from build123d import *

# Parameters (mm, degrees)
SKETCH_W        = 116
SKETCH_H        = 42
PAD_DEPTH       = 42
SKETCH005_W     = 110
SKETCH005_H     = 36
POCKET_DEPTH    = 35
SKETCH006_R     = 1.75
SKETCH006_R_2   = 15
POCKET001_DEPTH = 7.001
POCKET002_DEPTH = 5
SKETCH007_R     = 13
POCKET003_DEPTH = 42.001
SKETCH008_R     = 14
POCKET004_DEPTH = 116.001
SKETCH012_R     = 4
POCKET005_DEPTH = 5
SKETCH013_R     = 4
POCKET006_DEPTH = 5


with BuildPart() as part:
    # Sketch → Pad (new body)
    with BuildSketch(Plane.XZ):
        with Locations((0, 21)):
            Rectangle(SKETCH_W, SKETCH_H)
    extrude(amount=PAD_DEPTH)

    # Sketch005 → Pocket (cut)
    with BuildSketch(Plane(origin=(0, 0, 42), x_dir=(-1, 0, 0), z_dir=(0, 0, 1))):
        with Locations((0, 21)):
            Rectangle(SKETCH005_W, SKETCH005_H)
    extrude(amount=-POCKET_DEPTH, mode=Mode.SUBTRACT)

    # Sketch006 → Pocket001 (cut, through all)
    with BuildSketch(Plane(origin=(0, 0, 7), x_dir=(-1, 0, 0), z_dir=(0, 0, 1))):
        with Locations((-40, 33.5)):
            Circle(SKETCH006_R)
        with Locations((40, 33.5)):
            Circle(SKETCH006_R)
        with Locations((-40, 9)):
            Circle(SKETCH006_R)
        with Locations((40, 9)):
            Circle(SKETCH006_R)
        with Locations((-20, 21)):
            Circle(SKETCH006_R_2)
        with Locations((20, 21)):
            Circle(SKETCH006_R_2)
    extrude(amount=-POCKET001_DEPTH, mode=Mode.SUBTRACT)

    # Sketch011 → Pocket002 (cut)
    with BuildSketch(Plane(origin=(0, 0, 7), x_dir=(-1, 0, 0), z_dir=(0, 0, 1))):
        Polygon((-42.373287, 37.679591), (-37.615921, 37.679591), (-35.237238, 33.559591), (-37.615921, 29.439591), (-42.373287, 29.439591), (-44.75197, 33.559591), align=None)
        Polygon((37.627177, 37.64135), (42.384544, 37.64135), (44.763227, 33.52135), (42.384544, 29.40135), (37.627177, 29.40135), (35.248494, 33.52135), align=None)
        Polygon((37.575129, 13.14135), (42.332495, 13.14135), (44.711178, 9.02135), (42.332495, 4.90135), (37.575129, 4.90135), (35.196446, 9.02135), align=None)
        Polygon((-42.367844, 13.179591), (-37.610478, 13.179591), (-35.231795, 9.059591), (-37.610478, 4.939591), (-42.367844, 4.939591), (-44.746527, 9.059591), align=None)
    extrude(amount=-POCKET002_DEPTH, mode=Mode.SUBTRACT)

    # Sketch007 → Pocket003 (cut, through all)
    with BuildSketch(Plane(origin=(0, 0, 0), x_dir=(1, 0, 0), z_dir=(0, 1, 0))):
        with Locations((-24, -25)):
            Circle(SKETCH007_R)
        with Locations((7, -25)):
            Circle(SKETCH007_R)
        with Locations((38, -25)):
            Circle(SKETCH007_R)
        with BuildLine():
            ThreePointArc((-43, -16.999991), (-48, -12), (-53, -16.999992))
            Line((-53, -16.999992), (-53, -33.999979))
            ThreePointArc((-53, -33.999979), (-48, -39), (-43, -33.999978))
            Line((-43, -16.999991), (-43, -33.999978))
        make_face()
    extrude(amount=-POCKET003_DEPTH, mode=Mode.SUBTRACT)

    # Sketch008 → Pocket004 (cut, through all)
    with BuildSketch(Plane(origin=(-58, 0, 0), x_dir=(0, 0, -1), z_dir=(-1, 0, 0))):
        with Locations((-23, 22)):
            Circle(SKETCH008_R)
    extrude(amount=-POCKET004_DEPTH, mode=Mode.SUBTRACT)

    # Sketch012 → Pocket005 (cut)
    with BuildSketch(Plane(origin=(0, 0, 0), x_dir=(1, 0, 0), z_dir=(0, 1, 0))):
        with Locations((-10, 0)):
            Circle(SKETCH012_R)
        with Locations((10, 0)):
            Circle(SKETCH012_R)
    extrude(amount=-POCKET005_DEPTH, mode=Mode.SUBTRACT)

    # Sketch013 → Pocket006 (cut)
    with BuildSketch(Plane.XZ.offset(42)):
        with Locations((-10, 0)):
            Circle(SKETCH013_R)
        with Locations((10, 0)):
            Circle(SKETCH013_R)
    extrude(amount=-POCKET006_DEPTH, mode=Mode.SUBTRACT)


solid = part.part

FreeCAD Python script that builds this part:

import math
import FreeCAD as App
import Part
import Sketcher
from FreeCAD import Vector
Q = App.Units.Quantity


def add_polygon(sketch, points):
    """Adds a closed chain of lines whose ends are joined by coincident constraints."""
    first, n = sketch.GeometryCount, len(points)
    for a, b in zip(points, points[1:] + points[:1]):
        sketch.addGeometry(Part.LineSegment(App.Vector(*a, 0), App.Vector(*b, 0)), False)
    for i in range(n):
        sketch.addConstraint(Sketcher.Constraint("Coincident", first + i, 2, first + (i + 1) % n, 1))

doc = App.newDocument("Part")
body = doc.addObject("PartDesign::Body", "Body")

sketch1 = body.newObject("Sketcher::SketchObject", "Sketch")
sketch1.AttachmentSupport = (doc.getObject("XZ_Plane"), [""])
sketch1.MapMode = "FlatFace"
add_polygon(sketch1, [(-58, 42), (-58, 0), (58, 0), (58, 42)])
sketch1.addConstraint(Sketcher.Constraint("Vertical", 0))
sketch1.addConstraint(Sketcher.Constraint("Horizontal", 1))
sketch1.addConstraint(Sketcher.Constraint("Vertical", 2))
sketch1.addConstraint(Sketcher.Constraint("Horizontal", 3))
sketch1.addConstraint(Sketcher.Constraint("Symmetric", 0, 2, 1, 2, -1, 1))
sketch1.addConstraint(Sketcher.Constraint("DistanceX", 1, 1, 1, 2, Q("116 mm")))
sketch1.addConstraint(Sketcher.Constraint("DistanceY", 0, 2, 0, 1, Q("42 mm")))
pad1 = body.newObject("PartDesign::Pad", "Pad")
pad1.Profile = sketch1
pad1.Length = 42

sketch2 = body.newObject("Sketcher::SketchObject", "Sketch001")
sketch2.AttachmentSupport = (doc.getObject("XY_Plane"), [""])
sketch2.MapMode = "FlatFace"
sketch2.AttachmentOffset = App.Placement(Vector(0, 0, 42), App.Rotation())
add_polygon(sketch2, [(55, -39), (55, -3), (-55, -3), (-55, -39)])
sketch2.addConstraint(Sketcher.Constraint("Vertical", 0))
sketch2.addConstraint(Sketcher.Constraint("Horizontal", 1))
sketch2.addConstraint(Sketcher.Constraint("Vertical", 2))
sketch2.addConstraint(Sketcher.Constraint("Horizontal", 3))
sketch2.addConstraint(Sketcher.Constraint("DistanceX", 1, 2, 1, 1, Q("110 mm")))
sketch2.addConstraint(Sketcher.Constraint("DistanceY", 0, 1, 0, 2, Q("36 mm")))
sketch2.addConstraint(Sketcher.Constraint("DistanceX", -1, 1, 0, 2, Q("55 mm")))
sketch2.addConstraint(Sketcher.Constraint("DistanceY", 0, 2, -1, 1, Q("3 mm")))
pocket1 = body.newObject("PartDesign::Pocket", "Pocket")
pocket1.Profile = sketch2
pocket1.Length = 35

sketch3 = body.newObject("Sketcher::SketchObject", "Sketch002")
sketch3.AttachmentSupport = (doc.getObject("XY_Plane"), [""])
sketch3.MapMode = "FlatFace"
sketch3.AttachmentOffset = App.Placement(Vector(0, 0, 7), App.Rotation())
sketch3.addGeometry(Part.Circle(Vector(40, -33.5, 0), Vector(0, 0, 1), 1.8), False)
sketch3.addGeometry(Part.Circle(Vector(-40, -33.5, 0), Vector(0, 0, 1), 1.8), False)
sketch3.addGeometry(Part.Circle(Vector(40, -9, 0), Vector(0, 0, 1), 1.8), False)
sketch3.addGeometry(Part.Circle(Vector(-40, -9, 0), Vector(0, 0, 1), 1.8), False)
sketch3.addGeometry(Part.Circle(Vector(20, -21, 0), Vector(0, 0, 1), 15), False)
sketch3.addGeometry(Part.Circle(Vector(-20, -21, 0), Vector(0, 0, 1), 15), False)
sketch3.addConstraint(Sketcher.Constraint("Equal", 0, 1))
sketch3.addConstraint(Sketcher.Constraint("Equal", 1, 2))
sketch3.addConstraint(Sketcher.Constraint("Equal", 2, 3))
sketch3.addConstraint(Sketcher.Constraint("Equal", 4, 5))
sketch3.addConstraint(Sketcher.Constraint("Symmetric", 0, 3, 1, 3, -2))
sketch3.addConstraint(Sketcher.Constraint("Symmetric", 2, 3, 3, 3, -2))
sketch3.addConstraint(Sketcher.Constraint("Symmetric", 4, 3, 5, 3, -2))
sketch3.addConstraint(Sketcher.Constraint("Vertical", 0, 3, 2, 3))
sketch3.addConstraint(Sketcher.Constraint("Diameter", 4, Q("30 mm")))
sketch3.addConstraint(Sketcher.Constraint("Diameter", 0, Q("3.5 mm")))
sketch3.addConstraint(Sketcher.Constraint("DistanceX", -1, 1, 0, 3, Q("40 mm")))
sketch3.addConstraint(Sketcher.Constraint("DistanceY", 2, 3, -1, 1, Q("9 mm")))
sketch3.addConstraint(Sketcher.Constraint("DistanceX", -1, 1, 4, 3, Q("20 mm")))
sketch3.addConstraint(Sketcher.Constraint("DistanceY", 4, 3, -1, 1, Q("21 mm")))
sketch3.addConstraint(Sketcher.Constraint("DistanceY", 0, 3, -1, 1, Q("33.5 mm")))
pocket2 = body.newObject("PartDesign::Pocket", "Pocket001")
pocket2.Profile = sketch3
pocket2.Type = "ThroughAll"

sketch4 = body.newObject("Sketcher::SketchObject", "Sketch003")
sketch4.AttachmentSupport = (doc.getObject("XY_Plane"), [""])
sketch4.MapMode = "FlatFace"
sketch4.AttachmentOffset = App.Placement(Vector(0, 0, 7), App.Rotation())
add_polygon(sketch4, [(37.6, -37.7), (42.4, -37.7), (44.8, -33.6), (42.4, -29.4), (37.6, -29.4), (35.2, -33.6)])
add_polygon(sketch4, [(-42.4, -37.6), (-37.6, -37.6), (-35.2, -33.5), (-37.6, -29.4), (-42.4, -29.4), (-44.8, -33.5)])
add_polygon(sketch4, [(-42.3, -13.1), (-37.6, -13.1), (-35.2, -9), (-37.6, -4.9), (-42.3, -4.9), (-44.7, -9)])
add_polygon(sketch4, [(37.6, -13.2), (42.4, -13.2), (44.7, -9.1), (42.4, -4.9), (37.6, -4.9), (35.2, -9.1)])
sketch4.addConstraint(Sketcher.Constraint("Horizontal", 0))
sketch4.addConstraint(Sketcher.Constraint("Horizontal", 3))
sketch4.addConstraint(Sketcher.Constraint("Horizontal", 6))
sketch4.addConstraint(Sketcher.Constraint("Horizontal", 9))
sketch4.addConstraint(Sketcher.Constraint("Horizontal", 12))
sketch4.addConstraint(Sketcher.Constraint("Horizontal", 15))
sketch4.addConstraint(Sketcher.Constraint("Horizontal", 18))
sketch4.addConstraint(Sketcher.Constraint("Horizontal", 21))
sketch4.addConstraint(Sketcher.Constraint("Parallel", 1, 4))
sketch4.addConstraint(Sketcher.Constraint("Parallel", 2, 5))
sketch4.addConstraint(Sketcher.Constraint("Parallel", 4, 7))
sketch4.addConstraint(Sketcher.Constraint("Parallel", 5, 8))
sketch4.addConstraint(Sketcher.Constraint("Parallel", 7, 10))
sketch4.addConstraint(Sketcher.Constraint("Parallel", 8, 11))
sketch4.addConstraint(Sketcher.Constraint("Parallel", 10, 13))
sketch4.addConstraint(Sketcher.Constraint("Parallel", 11, 14))
sketch4.addConstraint(Sketcher.Constraint("Parallel", 13, 16))
sketch4.addConstraint(Sketcher.Constraint("Parallel", 14, 17))
sketch4.addConstraint(Sketcher.Constraint("Parallel", 16, 19))
sketch4.addConstraint(Sketcher.Constraint("Parallel", 17, 20))
sketch4.addConstraint(Sketcher.Constraint("Parallel", 19, 22))
sketch4.addConstraint(Sketcher.Constraint("Parallel", 20, 23))
sketch4.addConstraint(Sketcher.Constraint("Horizontal", 1, 2, 4, 2))
sketch4.addConstraint(Sketcher.Constraint("Horizontal", 7, 2, 10, 2))
sketch4.addConstraint(Sketcher.Constraint("Horizontal", 13, 2, 16, 2))
sketch4.addConstraint(Sketcher.Constraint("Horizontal", 19, 2, 22, 2))
sketch4.addConstraint(Sketcher.Constraint("Vertical", 0, 2, 2, 2))
sketch4.addConstraint(Sketcher.Constraint("Vertical", 3, 2, 5, 2))
sketch4.addConstraint(Sketcher.Constraint("Vertical", 6, 2, 8, 2))
sketch4.addConstraint(Sketcher.Constraint("Vertical", 12, 2, 14, 2))
sketch4.addConstraint(Sketcher.Constraint("Vertical", 18, 2, 20, 2))
sketch4.addConstraint(Sketcher.Constraint("Equal", 3, 6))
sketch4.addConstraint(Sketcher.Constraint("Equal", 9, 12))
sketch4.addConstraint(Sketcher.Constraint("Equal", 15, 18))
sketch4.addConstraint(Sketcher.Constraint("Equal", 5, 7))
sketch4.addConstraint(Sketcher.Constraint("Equal", 11, 13))
sketch4.addConstraint(Sketcher.Constraint("Equal", 17, 19))
sketch4.addConstraint(Sketcher.Constraint("Angle", 1, Q("60.000001 deg")))
sketch4.addConstraint(Sketcher.Constraint("DistanceY", 6, 2, 12, 2, Q("24.5 mm")))
sketch4.addConstraint(Sketcher.Constraint("DistanceY", 0, 2, 18, 2, Q("24.5 mm")))
sketch4.addConstraint(Sketcher.Constraint("DistanceY", 0, 2, 1, 2, Q("4.12 mm")))
sketch4.addConstraint(Sketcher.Constraint("DistanceX", 6, 2, 5, 2, Q("75.243098 mm")))
sketch4.addConstraint(Sketcher.Constraint("DistanceX", 10, 2, 12, 2, Q("7.188098 mm")))
sketch4.addConstraint(Sketcher.Constraint("DistanceX", 0, 1, 0, 2, Q("4.757366 mm")))
sketch4.addConstraint(Sketcher.Constraint("DistanceY", 0, 2, -1, 1, Q("37.679591 mm")))
sketch4.addConstraint(Sketcher.Constraint("DistanceX", -1, 1, 1, 2, Q("44.75197 mm")))
sketch4.addConstraint(Sketcher.Constraint("DistanceY", 6, 2, -1, 1, Q("37.64135 mm")))
sketch4.addConstraint(Sketcher.Constraint("DistanceX", 2, 2, 19, 2, Q("2.37324 mm")))
pocket3 = body.newObject("PartDesign::Pocket", "Pocket002")
pocket3.Profile = sketch4
pocket3.Length = 5

sketch5 = body.newObject("Sketcher::SketchObject", "Sketch004")
sketch5.AttachmentSupport = (doc.getObject("XZ_Plane"), [""])
sketch5.MapMode = "FlatFace"
sketch5.addGeometry(Part.Circle(Vector(-24, 25, 0), Vector(0, 0, 1), 13), False)
sketch5.addGeometry(Part.Circle(Vector(7, 25, 0), Vector(0, 0, 1), 13), False)
sketch5.addGeometry(Part.Circle(Vector(38, 25, 0), Vector(0, 0, 1), 13), False)
sketch5.addGeometry(Part.ArcOfCircle(Part.Circle(Vector(-48, 17, 0), Vector(0, 0, 1), 5), math.radians(-180), math.radians(0)), False)
sketch5.addGeometry(Part.LineSegment(Vector(-53, 17, 0), Vector(-53, 34, 0)), False)
sketch5.addGeometry(Part.ArcOfCircle(Part.Circle(Vector(-48, 34, 0), Vector(0, 0, 1), 5), math.radians(0), math.radians(180)), False)
sketch5.addGeometry(Part.LineSegment(Vector(-43, 34, 0), Vector(-43, 17, 0)), False)
sketch5.addConstraint(Sketcher.Constraint("Tangent", 3, 1, 4, 1))
sketch5.addConstraint(Sketcher.Constraint("Coincident", 4, 2, 5, 2))
sketch5.addConstraint(Sketcher.Constraint("Coincident", 5, 1, 6, 1))
sketch5.addConstraint(Sketcher.Constraint("Tangent", 6, 2, 3, 2))
sketch5.addConstraint(Sketcher.Constraint("Vertical", 4))
sketch5.addConstraint(Sketcher.Constraint("Vertical", 6))
sketch5.addConstraint(Sketcher.Constraint("Equal", 0, 1))
sketch5.addConstraint(Sketcher.Constraint("Equal", 1, 2))
sketch5.addConstraint(Sketcher.Constraint("Horizontal", 0, 3, 1, 3))
sketch5.addConstraint(Sketcher.Constraint("Horizontal", 1, 3, 2, 3))
sketch5.addConstraint(Sketcher.Constraint("Horizontal", 4, 2, 5, 1))
sketch5.addConstraint(Sketcher.Constraint("Diameter", 0, Q("26 mm")))
sketch5.addConstraint(Sketcher.Constraint("Radius", 3, Q("5 mm")))
sketch5.addConstraint(Sketcher.Constraint("DistanceX", 0, 3, -1, 1, Q("24 mm")))
sketch5.addConstraint(Sketcher.Constraint("DistanceY", -1, 1, 0, 3, Q("25 mm")))
sketch5.addConstraint(Sketcher.Constraint("DistanceX", -1, 1, 1, 3, Q("7 mm")))
sketch5.addConstraint(Sketcher.Constraint("DistanceX", -1, 1, 2, 3, Q("38 mm")))
sketch5.addConstraint(Sketcher.Constraint("DistanceX", 3, 3, -1, 1, Q("48 mm")))
sketch5.addConstraint(Sketcher.Constraint("DistanceY", -1, 1, 3, 3, Q("17 mm")))
sketch5.addConstraint(Sketcher.Constraint("DistanceY", -1, 1, 5, 3, Q("34 mm")))
sketch5.addConstraint(Sketcher.Constraint("DistanceY", 4, 1, 4, 2, Q("16.999987 mm")))
pocket4 = body.newObject("PartDesign::Pocket", "Pocket003")
pocket4.Profile = sketch5
pocket4.Type = "ThroughAll"
pocket4.Reversed = True

sketch6 = body.newObject("Sketcher::SketchObject", "Sketch005")
sketch6.AttachmentSupport = (doc.getObject("YZ_Plane"), [""])
sketch6.MapMode = "FlatFace"
sketch6.AttachmentOffset = App.Placement(Vector(0, 0, -58), App.Rotation())
sketch6.addGeometry(Part.Circle(Vector(-22, 23, 0), Vector(0, 0, 1), 14), False)
sketch6.addConstraint(Sketcher.Constraint("Diameter", 0, Q("28 mm")))
sketch6.addConstraint(Sketcher.Constraint("DistanceX", 0, 3, -1, 1, Q("22 mm")))
sketch6.addConstraint(Sketcher.Constraint("DistanceY", -1, 1, 0, 3, Q("23 mm")))
pocket5 = body.newObject("PartDesign::Pocket", "Pocket004")
pocket5.Profile = sketch6
pocket5.Type = "ThroughAll"
pocket5.Reversed = True

sketch7 = body.newObject("Sketcher::SketchObject", "Sketch006")
sketch7.AttachmentSupport = (doc.getObject("XZ_Plane"), [""])
sketch7.MapMode = "FlatFace"
sketch7.addGeometry(Part.Circle(Vector(-10, 0, 0), Vector(0, 0, 1), 4), False)
sketch7.addGeometry(Part.Circle(Vector(10, 0, 0), Vector(0, 0, 1), 4), False)
sketch7.addConstraint(Sketcher.Constraint("Equal", 0, 1))
sketch7.addConstraint(Sketcher.Constraint("Symmetric", 0, 3, 1, 3, -1, 1))
sketch7.addConstraint(Sketcher.Constraint("PointOnObject", 0, 3, -1))
sketch7.addConstraint(Sketcher.Constraint("Diameter", 0, Q("8 mm")))
sketch7.addConstraint(Sketcher.Constraint("DistanceX", 0, 3, -1, 1, Q("10 mm")))
pocket6 = body.newObject("PartDesign::Pocket", "Pocket005")
pocket6.Profile = sketch7
pocket6.Length = 5
pocket6.Reversed = True

sketch8 = body.newObject("Sketcher::SketchObject", "Sketch007")
sketch8.AttachmentSupport = (doc.getObject("XZ_Plane"), [""])
sketch8.MapMode = "FlatFace"
sketch8.AttachmentOffset = App.Placement(Vector(0, 0, 42), App.Rotation())
sketch8.addGeometry(Part.Circle(Vector(-10, 0, 0), Vector(0, 0, 1), 4), False)
sketch8.addGeometry(Part.Circle(Vector(10, 0, 0), Vector(0, 0, 1), 4), False)
sketch8.addConstraint(Sketcher.Constraint("Equal", 0, 1))
sketch8.addConstraint(Sketcher.Constraint("Symmetric", 0, 3, 1, 3, -1, 1))
sketch8.addConstraint(Sketcher.Constraint("PointOnObject", 0, 3, -1))
sketch8.addConstraint(Sketcher.Constraint("Diameter", 0, Q("8 mm")))
sketch8.addConstraint(Sketcher.Constraint("DistanceX", 0, 3, -1, 1, Q("10 mm")))
pocket7 = body.newObject("PartDesign::Pocket", "Pocket006")
pocket7.Profile = sketch8
pocket7.Length = 5

doc.recompute()
